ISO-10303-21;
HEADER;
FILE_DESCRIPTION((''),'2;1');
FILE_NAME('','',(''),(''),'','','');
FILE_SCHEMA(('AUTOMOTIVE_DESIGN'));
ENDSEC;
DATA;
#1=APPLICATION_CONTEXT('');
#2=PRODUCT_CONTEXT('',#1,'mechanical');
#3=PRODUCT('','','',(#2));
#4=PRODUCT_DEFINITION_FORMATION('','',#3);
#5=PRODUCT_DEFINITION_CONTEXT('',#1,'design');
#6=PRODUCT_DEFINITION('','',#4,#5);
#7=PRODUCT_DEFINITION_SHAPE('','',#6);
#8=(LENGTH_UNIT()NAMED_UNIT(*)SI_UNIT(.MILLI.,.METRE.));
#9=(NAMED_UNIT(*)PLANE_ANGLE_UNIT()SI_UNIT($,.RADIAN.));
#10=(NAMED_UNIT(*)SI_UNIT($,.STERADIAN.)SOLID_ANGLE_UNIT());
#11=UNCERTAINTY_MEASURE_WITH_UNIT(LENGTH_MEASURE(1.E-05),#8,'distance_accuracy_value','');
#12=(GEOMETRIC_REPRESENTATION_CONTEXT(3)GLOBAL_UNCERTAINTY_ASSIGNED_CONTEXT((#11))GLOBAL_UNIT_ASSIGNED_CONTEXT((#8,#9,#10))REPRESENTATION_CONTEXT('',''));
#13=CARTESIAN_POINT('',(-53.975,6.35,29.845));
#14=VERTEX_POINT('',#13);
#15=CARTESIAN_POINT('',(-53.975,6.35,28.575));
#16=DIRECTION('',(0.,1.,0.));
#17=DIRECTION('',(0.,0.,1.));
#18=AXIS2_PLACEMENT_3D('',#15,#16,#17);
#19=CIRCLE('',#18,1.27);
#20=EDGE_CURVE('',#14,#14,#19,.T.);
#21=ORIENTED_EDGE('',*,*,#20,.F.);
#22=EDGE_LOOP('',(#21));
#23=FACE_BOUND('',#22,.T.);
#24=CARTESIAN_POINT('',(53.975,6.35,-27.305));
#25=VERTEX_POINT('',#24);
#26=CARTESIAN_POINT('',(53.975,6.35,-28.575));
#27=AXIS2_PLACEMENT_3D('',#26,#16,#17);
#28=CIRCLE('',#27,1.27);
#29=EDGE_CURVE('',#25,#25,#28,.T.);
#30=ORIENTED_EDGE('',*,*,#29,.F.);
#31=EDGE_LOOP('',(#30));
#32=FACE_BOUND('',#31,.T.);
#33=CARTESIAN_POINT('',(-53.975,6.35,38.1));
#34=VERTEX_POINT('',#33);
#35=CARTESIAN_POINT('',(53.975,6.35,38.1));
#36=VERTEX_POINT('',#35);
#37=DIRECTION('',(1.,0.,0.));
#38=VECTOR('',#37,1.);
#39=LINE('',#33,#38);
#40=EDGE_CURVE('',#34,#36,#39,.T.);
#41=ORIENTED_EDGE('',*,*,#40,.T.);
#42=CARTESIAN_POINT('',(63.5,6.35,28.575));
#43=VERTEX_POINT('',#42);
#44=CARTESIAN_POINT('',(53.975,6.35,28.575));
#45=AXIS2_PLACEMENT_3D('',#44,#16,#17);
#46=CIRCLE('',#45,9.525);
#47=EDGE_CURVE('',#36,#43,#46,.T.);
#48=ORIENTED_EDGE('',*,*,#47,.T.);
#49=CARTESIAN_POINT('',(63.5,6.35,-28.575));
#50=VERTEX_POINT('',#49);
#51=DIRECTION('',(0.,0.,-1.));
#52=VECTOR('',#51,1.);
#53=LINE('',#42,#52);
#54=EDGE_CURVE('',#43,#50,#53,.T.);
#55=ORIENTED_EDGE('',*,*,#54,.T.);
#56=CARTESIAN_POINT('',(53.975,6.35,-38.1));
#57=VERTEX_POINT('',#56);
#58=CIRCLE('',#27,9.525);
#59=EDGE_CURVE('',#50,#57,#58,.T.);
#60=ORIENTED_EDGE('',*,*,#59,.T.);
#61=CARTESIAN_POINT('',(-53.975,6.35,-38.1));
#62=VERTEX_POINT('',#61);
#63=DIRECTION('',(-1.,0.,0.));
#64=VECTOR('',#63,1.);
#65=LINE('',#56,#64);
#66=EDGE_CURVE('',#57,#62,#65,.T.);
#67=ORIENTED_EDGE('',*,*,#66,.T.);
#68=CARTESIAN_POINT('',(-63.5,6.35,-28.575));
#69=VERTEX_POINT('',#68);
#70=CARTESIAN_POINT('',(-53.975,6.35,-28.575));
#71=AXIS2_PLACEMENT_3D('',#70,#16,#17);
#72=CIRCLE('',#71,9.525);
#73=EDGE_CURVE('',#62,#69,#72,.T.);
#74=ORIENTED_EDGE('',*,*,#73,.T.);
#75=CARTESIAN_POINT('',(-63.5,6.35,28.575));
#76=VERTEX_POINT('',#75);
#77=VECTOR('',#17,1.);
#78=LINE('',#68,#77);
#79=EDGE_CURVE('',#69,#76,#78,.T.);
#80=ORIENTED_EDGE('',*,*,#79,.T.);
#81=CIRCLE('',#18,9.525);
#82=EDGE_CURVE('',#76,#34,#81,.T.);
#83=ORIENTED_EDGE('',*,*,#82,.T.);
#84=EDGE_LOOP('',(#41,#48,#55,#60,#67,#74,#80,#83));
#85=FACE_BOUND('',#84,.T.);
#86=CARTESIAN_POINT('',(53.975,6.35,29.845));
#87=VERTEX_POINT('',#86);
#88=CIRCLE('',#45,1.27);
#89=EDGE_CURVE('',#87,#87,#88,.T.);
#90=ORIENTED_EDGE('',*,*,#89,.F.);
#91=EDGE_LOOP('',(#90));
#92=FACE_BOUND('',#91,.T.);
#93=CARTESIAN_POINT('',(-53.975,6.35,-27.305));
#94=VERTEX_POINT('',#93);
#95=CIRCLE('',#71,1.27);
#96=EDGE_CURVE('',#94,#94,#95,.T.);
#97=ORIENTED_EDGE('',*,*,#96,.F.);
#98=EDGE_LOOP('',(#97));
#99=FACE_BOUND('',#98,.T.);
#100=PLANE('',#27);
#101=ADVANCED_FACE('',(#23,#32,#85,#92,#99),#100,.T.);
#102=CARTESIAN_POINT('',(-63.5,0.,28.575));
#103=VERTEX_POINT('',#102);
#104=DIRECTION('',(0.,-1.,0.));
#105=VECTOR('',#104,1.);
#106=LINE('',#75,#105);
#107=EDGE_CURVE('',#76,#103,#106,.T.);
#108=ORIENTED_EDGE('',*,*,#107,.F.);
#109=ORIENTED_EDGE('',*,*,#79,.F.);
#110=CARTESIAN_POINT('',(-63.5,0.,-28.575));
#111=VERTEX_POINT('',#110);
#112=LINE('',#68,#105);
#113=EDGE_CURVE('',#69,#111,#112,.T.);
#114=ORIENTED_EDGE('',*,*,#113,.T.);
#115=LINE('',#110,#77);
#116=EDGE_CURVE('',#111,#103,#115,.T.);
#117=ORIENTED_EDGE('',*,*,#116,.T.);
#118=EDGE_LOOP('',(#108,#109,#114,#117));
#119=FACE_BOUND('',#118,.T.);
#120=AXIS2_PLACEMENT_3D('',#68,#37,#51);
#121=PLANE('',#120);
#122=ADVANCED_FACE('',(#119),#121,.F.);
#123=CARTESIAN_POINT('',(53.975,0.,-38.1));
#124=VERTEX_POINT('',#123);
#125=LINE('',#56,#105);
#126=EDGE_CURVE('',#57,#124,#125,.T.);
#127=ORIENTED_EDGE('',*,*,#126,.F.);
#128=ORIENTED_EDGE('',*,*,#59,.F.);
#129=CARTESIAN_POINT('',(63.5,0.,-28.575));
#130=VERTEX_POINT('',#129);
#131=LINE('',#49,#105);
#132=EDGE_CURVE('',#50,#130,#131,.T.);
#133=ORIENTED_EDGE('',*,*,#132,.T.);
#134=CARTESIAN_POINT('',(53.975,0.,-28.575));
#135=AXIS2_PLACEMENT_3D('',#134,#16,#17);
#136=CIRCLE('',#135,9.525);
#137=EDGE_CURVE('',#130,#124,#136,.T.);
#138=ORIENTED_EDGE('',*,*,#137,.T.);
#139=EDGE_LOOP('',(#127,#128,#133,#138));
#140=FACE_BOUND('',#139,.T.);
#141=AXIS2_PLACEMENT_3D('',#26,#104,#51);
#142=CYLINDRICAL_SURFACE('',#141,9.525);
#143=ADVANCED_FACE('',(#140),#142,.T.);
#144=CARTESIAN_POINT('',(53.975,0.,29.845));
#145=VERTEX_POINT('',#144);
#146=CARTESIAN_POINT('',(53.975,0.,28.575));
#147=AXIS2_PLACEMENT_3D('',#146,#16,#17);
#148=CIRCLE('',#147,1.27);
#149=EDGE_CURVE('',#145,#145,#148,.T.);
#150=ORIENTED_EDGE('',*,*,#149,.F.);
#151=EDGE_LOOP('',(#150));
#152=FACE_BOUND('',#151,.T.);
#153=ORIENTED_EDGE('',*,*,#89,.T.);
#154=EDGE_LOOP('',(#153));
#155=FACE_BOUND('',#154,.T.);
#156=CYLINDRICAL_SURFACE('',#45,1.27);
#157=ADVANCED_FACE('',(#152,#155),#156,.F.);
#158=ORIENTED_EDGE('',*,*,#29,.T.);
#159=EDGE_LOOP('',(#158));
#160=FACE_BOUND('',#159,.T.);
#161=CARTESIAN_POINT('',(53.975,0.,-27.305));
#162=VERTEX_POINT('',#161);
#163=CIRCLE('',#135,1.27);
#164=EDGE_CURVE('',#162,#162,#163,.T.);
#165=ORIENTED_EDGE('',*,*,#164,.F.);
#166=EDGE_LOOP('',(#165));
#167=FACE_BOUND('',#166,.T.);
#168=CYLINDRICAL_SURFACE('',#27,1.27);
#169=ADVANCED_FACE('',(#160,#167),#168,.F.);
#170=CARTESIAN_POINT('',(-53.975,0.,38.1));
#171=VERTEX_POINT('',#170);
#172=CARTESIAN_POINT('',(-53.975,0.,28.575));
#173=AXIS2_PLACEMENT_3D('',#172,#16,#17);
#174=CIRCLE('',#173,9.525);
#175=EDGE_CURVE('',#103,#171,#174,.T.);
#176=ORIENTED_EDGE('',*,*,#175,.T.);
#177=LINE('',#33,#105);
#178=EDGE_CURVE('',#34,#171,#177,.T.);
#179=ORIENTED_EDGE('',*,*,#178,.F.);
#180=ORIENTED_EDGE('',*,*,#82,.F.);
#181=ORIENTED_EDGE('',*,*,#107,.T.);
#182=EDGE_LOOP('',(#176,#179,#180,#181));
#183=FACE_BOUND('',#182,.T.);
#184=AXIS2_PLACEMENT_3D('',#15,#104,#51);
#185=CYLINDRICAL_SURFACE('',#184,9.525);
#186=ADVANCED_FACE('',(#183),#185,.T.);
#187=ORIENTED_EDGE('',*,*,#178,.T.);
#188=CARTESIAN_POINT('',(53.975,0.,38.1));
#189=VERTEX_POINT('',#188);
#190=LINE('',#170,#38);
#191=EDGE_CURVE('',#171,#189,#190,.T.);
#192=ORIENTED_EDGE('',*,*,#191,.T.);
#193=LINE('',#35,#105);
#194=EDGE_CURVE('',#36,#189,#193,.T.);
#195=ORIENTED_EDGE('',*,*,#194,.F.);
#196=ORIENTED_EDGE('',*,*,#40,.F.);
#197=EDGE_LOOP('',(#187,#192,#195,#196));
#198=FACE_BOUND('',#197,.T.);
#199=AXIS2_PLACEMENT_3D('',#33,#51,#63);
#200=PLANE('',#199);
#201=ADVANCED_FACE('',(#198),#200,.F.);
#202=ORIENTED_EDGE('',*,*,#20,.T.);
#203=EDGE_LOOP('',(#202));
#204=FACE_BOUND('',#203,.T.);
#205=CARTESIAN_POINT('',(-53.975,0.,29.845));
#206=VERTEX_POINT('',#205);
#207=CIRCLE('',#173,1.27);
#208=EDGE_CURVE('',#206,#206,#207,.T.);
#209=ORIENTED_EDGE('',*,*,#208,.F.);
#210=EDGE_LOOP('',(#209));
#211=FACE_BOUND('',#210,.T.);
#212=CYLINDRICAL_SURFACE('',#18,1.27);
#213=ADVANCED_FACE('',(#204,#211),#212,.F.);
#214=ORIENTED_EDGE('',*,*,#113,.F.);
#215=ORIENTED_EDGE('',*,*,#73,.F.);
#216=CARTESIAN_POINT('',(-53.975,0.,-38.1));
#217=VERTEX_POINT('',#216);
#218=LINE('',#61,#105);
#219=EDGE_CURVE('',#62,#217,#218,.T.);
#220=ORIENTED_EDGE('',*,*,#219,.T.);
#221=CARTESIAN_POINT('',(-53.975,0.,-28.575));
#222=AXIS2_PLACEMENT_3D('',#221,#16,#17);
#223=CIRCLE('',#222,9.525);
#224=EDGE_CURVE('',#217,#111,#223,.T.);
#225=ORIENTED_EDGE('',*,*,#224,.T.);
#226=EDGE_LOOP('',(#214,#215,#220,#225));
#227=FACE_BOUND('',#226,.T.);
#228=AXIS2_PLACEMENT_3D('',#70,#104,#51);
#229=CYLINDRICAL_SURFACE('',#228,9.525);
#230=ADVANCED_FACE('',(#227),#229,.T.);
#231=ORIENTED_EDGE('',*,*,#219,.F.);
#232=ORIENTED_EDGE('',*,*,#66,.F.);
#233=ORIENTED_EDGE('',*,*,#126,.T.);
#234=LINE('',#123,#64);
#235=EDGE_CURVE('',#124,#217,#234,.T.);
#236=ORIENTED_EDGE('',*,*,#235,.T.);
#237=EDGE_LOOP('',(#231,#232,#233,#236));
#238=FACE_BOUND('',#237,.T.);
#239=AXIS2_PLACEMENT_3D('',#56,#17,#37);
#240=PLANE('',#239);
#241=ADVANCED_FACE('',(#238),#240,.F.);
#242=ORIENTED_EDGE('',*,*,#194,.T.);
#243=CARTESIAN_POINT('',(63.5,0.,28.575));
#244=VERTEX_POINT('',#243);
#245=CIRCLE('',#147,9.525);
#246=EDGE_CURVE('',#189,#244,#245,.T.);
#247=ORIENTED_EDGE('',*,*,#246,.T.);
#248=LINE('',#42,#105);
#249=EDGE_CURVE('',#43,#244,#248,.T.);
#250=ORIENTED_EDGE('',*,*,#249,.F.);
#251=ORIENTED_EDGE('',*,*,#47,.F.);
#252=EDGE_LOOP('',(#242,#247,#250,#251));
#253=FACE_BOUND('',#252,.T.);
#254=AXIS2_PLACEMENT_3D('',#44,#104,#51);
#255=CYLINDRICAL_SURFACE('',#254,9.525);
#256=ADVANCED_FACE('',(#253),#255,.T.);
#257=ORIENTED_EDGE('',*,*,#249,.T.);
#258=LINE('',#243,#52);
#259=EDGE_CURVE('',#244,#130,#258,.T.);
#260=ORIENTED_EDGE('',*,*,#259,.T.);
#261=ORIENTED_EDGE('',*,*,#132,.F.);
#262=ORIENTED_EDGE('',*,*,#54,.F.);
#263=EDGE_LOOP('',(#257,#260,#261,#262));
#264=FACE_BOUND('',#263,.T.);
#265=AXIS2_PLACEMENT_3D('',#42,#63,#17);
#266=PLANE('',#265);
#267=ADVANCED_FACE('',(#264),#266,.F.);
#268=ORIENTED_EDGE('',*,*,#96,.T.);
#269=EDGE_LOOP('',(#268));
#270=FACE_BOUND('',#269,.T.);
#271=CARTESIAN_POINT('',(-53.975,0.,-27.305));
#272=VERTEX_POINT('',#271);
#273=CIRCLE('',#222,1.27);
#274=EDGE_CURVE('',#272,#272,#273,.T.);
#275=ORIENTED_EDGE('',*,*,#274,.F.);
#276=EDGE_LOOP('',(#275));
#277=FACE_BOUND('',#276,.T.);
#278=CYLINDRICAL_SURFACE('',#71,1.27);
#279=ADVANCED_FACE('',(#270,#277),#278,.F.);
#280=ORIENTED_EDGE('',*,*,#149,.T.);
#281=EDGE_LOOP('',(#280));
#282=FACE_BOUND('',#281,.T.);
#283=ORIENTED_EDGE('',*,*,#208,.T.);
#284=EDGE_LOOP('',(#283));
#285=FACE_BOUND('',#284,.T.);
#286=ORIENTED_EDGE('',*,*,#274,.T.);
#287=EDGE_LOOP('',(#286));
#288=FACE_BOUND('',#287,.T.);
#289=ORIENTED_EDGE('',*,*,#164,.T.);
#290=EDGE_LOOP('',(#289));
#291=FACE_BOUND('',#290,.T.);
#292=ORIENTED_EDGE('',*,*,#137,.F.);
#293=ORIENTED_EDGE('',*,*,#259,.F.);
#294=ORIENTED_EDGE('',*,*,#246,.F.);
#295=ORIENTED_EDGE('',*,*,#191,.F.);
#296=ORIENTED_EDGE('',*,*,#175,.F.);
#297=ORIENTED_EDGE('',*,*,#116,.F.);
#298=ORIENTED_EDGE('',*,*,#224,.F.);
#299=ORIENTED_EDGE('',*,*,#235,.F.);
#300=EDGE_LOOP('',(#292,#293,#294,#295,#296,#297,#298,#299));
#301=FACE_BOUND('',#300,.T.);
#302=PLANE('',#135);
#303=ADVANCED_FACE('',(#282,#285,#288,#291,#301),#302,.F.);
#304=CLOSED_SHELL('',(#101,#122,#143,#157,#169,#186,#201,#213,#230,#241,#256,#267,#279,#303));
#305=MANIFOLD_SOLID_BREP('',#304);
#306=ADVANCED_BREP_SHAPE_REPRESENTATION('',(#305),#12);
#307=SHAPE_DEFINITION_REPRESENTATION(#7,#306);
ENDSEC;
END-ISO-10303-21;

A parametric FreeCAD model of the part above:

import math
import FreeCAD as App
import Part
import Sketcher
Q = App.Units.Quantity

doc = App.newDocument("Part")
body = doc.addObject("PartDesign::Body", "Body")

# Sketch on XZ plane
sketch1 = doc.addObject("Sketcher::SketchObject", "Sketch")
body.addObject(sketch1)
sketch1.AttachmentSupport = (doc.XZ_Plane, [""])
sketch1.MapMode = "FlatFace"
sketch1.addGeometry(Part.LineSegment(App.Vector(63.5, 28.575, 0), App.Vector(63.5, -28.575, 0)), False)
sketch1.addGeometry(Part.ArcOfCircle(Part.Circle(App.Vector(53.975, -28.575, 0), App.Vector(0, 0, 1), 9.525), math.radians(-90), math.radians(0)), False)
sketch1.addGeometry(Part.LineSegment(App.Vector(53.975, -38.1, 0), App.Vector(-53.975, -38.1, 0)), False)
sketch1.addGeometry(Part.ArcOfCircle(Part.Circle(App.Vector(-53.975, -28.575, 0), App.Vector(0, 0, 1), 9.525), math.radians(180), math.radians(270)), False)
sketch1.addGeometry(Part.LineSegment(App.Vector(-63.5, -28.575, 0), App.Vector(-63.5, 28.575, 0)), False)
sketch1.addGeometry(Part.ArcOfCircle(Part.Circle(App.Vector(-53.975, 28.575, 0), App.Vector(0, 0, 1), 9.525), math.radians(90), math.radians(180)), False)
sketch1.addGeometry(Part.LineSegment(App.Vector(-53.975, 38.1, 0), App.Vector(53.975, 38.1, 0)), False)
sketch1.addGeometry(Part.ArcOfCircle(Part.Circle(App.Vector(53.975, 28.575, 0), App.Vector(0, 0, 1), 9.525), math.radians(0), math.radians(90)), False)
sketch1.addConstraint(Sketcher.Constraint("Tangent", 0, 2, 1, 2))
sketch1.addConstraint(Sketcher.Constraint("Tangent", 1, 1, 2, 1))
sketch1.addConstraint(Sketcher.Constraint("Tangent", 2, 2, 3, 2))
sketch1.addConstraint(Sketcher.Constraint("Tangent", 3, 1, 4, 1))
sketch1.addConstraint(Sketcher.Constraint("Tangent", 4, 2, 5, 2))
sketch1.addConstraint(Sketcher.Constraint("Tangent", 5, 1, 6, 1))
sketch1.addConstraint(Sketcher.Constraint("Tangent", 6, 2, 7, 2))
sketch1.addConstraint(Sketcher.Constraint("Tangent", 7, 1, 0, 1))
sketch1.addConstraint(Sketcher.Constraint("Vertical", 0))
sketch1.addConstraint(Sketcher.Constraint("Horizontal", 2))
sketch1.addConstraint(Sketcher.Constraint("Vertical", 4))
sketch1.addConstraint(Sketcher.Constraint("Horizontal", 6))
sketch1.addConstraint(Sketcher.Constraint("Equal", 1, 3))
sketch1.addConstraint(Sketcher.Constraint("Equal", 3, 5))
sketch1.addConstraint(Sketcher.Constraint("Equal", 5, 7))
sketch1.addConstraint(Sketcher.Constraint("Symmetric", 1, 3, 5, 3, -1, 1))
sketch1.addConstraint(Sketcher.Constraint("Radius", 1, Q("0.375 in")))
sketch1.addConstraint(Sketcher.Constraint("DistanceY", 2, 2, 5, 1, Q("3 in")))
sketch1.addConstraint(Sketcher.Constraint("DistanceX", 2, 2, 2, 1, Q("4.25 in")))
pad1 = doc.addObject("PartDesign::Pad", "Pad")
body.addObject(pad1)
pad1.Profile = sketch1
pad1.Length = Q("0.25 in")
pad1.Reversed = True

# Sketch on XZ plane
sketch2 = doc.addObject("Sketcher::SketchObject", "Sketch001")
body.addObject(sketch2)
sketch2.AttachmentSupport = (doc.XZ_Plane, [""])
sketch2.MapMode = "FlatFace"
sketch2.AttachmentOffset = App.Placement(App.Vector(0, 0, -0.25 * 25.4), App.Rotation())
sketch2.addGeometry(Part.Circle(App.Vector(53.975, -28.575, 0), App.Vector(0, 0, 1), 1.27), False)
sketch2.addGeometry(Part.Circle(App.Vector(53.975, 28.575, 0), App.Vector(0, 0, 1), 1.27), False)
sketch2.addGeometry(Part.Circle(App.Vector(-53.975, -28.575, 0), App.Vector(0, 0, 1), 1.27), False)
sketch2.addGeometry(Part.Circle(App.Vector(-53.975, 28.575, 0), App.Vector(0, 0, 1), 1.27), False)
sketch2.addConstraint(Sketcher.Constraint("Equal", 0, 1))
sketch2.addConstraint(Sketcher.Constraint("Equal", 1, 2))
sketch2.addConstraint(Sketcher.Constraint("Equal", 2, 3))
sketch2.addConstraint(Sketcher.Constraint("Symmetric", 1, 3, 2, 3, -1, 1))
sketch2.addConstraint(Sketcher.Constraint("Symmetric", 0, 3, 3, 3, -1, 1))
sketch2.addConstraint(Sketcher.Constraint("Symmetric", 0, 3, 2, 3, -2))
sketch2.addConstraint(Sketcher.Constraint("Diameter", 0, Q("0.1 in")))
sketch2.addConstraint(Sketcher.Constraint("DistanceY", 0, 3, 1, 3, Q("2.25 in")))
sketch2.addConstraint(Sketcher.Constraint("DistanceX", 2, 3, 0, 3, Q("4.25 in")))
doc.recompute()
hole = doc.addObject("PartDesign::Hole", "Hole")
body.addObject(hole)
hole.Profile = sketch2
hole.ThreadType = "None"
hole.Diameter = Q("0.1 in")
hole.DepthType = "Dimension"
hole.Depth = Q("0.351 in")
hole.DrillPoint = "Angled"
hole.DrillPointAngle = 118
hole.Reversed = True

doc.recompute()
